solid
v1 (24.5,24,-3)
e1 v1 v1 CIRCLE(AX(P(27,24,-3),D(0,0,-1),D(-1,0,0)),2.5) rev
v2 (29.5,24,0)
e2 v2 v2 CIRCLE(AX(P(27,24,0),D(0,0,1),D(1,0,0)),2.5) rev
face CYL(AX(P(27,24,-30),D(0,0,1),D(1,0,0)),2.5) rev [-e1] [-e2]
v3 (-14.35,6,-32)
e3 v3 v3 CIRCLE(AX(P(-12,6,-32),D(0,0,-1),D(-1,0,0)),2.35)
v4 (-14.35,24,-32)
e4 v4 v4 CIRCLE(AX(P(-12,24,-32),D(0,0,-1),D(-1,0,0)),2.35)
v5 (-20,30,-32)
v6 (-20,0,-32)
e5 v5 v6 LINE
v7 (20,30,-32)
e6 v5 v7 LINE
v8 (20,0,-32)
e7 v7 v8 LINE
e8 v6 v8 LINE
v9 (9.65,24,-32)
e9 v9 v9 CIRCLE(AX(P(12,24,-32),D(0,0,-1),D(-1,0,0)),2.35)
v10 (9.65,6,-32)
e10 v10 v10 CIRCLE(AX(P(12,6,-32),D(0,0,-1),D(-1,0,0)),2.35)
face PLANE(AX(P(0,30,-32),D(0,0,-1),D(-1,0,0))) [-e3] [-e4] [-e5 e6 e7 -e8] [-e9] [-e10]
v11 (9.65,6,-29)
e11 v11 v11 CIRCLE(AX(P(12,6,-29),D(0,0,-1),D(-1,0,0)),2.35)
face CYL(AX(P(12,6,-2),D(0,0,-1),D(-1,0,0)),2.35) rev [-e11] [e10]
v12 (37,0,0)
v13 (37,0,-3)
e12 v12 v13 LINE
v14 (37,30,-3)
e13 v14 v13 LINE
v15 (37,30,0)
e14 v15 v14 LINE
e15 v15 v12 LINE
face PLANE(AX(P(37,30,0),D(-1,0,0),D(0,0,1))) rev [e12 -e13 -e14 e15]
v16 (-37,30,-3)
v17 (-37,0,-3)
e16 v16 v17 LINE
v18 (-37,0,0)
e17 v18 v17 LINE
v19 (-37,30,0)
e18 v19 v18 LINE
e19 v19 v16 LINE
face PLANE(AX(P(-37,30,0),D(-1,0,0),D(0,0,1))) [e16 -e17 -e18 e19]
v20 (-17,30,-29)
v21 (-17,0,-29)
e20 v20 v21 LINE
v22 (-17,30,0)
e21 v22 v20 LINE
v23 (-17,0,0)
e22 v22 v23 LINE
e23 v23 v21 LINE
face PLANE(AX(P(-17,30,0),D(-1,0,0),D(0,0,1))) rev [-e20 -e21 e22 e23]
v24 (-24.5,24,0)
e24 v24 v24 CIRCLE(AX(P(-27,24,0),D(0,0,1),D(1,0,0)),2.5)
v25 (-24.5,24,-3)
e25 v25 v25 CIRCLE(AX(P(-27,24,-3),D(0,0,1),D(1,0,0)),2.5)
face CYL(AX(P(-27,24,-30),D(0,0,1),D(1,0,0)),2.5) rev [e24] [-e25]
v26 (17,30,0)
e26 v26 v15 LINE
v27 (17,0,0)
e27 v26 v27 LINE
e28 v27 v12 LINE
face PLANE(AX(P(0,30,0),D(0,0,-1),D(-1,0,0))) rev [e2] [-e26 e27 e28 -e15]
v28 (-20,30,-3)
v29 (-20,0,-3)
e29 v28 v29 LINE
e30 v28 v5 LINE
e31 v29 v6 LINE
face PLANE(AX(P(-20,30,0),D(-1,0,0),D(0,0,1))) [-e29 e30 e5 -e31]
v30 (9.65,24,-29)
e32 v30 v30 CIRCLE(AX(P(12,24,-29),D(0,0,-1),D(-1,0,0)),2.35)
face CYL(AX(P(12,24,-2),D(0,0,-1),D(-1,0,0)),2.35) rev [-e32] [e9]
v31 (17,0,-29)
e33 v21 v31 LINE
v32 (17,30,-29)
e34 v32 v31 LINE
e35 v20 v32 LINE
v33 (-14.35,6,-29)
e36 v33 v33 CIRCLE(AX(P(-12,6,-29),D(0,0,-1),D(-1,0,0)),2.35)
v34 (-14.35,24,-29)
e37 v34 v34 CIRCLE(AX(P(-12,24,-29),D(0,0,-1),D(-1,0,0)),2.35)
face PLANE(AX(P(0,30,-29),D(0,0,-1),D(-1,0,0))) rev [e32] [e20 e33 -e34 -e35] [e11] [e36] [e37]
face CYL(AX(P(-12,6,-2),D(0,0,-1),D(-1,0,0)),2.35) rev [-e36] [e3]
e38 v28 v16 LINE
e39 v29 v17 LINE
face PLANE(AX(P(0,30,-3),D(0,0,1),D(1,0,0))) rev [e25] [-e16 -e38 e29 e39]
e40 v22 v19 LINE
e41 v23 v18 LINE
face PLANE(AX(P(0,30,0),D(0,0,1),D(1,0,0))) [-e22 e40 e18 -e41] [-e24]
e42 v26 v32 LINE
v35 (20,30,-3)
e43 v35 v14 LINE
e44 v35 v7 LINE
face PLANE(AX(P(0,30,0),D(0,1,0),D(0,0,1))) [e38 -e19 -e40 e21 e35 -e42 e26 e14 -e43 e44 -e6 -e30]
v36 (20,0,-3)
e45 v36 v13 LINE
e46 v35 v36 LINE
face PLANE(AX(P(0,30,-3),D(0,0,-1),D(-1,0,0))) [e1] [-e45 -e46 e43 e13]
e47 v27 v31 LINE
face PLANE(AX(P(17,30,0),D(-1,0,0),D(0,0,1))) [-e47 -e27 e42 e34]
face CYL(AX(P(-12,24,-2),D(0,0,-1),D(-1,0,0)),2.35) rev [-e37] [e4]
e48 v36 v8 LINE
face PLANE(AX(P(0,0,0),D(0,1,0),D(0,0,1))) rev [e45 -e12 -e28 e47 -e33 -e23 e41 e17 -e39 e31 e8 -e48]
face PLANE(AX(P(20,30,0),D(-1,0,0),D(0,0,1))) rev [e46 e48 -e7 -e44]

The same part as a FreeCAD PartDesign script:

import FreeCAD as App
import Part
import Sketcher

V = App.Vector

doc = App.newDocument("Part")
body = doc.addObject("PartDesign::Body", "Body")

# Sketch on XZ plane
sketch1 = doc.addObject("Sketcher::SketchObject", "Sketch")
body.addObject(sketch1)
sketch1.AttachmentSupport = (doc.XZ_Plane, [""])
sketch1.MapMode = "FlatFace"
sketch1.addGeometry([
    Part.LineSegment(V(-17, -29, 0), V(17, -29, 0)),  # 0
    Part.LineSegment(V(17, -29, 0), V(17, 0, 0)),  # 1
    Part.LineSegment(V(17, 0, 0), V(37, 0, 0)),  # 2
    Part.LineSegment(V(37, 0, 0), V(37, -3, 0)),  # 3
    Part.LineSegment(V(37, -3, 0), V(20, -3, 0)),  # 4
    Part.LineSegment(V(20, -3, 0), V(20, -32, 0)),  # 5
    Part.LineSegment(V(20, -32, 0), V(-20, -32, 0)),  # 6
    Part.LineSegment(V(-20, -32, 0), V(-20, -3, 0)),  # 7
    Part.LineSegment(V(-20, -3, 0), V(-37, -3, 0)),  # 8
    Part.LineSegment(V(-37, -3, 0), V(-37, 0, 0)),  # 9
    Part.LineSegment(V(-37, 0, 0), V(-17, 0, 0)),  # 10
    Part.LineSegment(V(-17, 0, 0), V(-17, -29, 0)),  # 11
], False)
sketch1.addConstraint([
    Sketcher.Constraint("Coincident", 0, 2, 1, 1),
    Sketcher.Constraint("Coincident", 1, 2, 2, 1),
    Sketcher.Constraint("Coincident", 2, 2, 3, 1),
    Sketcher.Constraint("Coincident", 3, 2, 4, 1),
    Sketcher.Constraint("Coincident", 4, 2, 5, 1),
    Sketcher.Constraint("Coincident", 5, 2, 6, 1),
    Sketcher.Constraint("Coincident", 6, 2, 7, 1),
    Sketcher.Constraint("Coincident", 7, 2, 8, 1),
    Sketcher.Constraint("Coincident", 8, 2, 9, 1),
    Sketcher.Constraint("Coincident", 9, 2, 10, 1),
    Sketcher.Constraint("Coincident", 10, 2, 11, 1),
    Sketcher.Constraint("Coincident", 11, 2, 0, 1),
    Sketcher.Constraint("Horizontal", 0),
    Sketcher.Constraint("Vertical", 1),
    Sketcher.Constraint("Horizontal", 2),
    Sketcher.Constraint("Vertical", 3),
    Sketcher.Constraint("Horizontal", 4),
    Sketcher.Constraint("Vertical", 5),
    Sketcher.Constraint("Horizontal", 6),
    Sketcher.Constraint("Vertical", 7),
    Sketcher.Constraint("Horizontal", 8),
    Sketcher.Constraint("Vertical", 9),
    Sketcher.Constraint("Horizontal", 10),
    Sketcher.Constraint("Vertical", 11),
    Sketcher.Constraint("Symmetric", 2, 2, 9, 2, -1, 1),
    Sketcher.Constraint("Symmetric", 4, 2, 7, 2, -2),
    Sketcher.Constraint("Symmetric", 1, 2, 10, 2, -2),
    Sketcher.Constraint("Equal", 1, 5),
    Sketcher.Constraint("DistanceX", 0, 1, 0, 2, 34.0),
    Sketcher.Constraint("DistanceX", 2, 1, 2, 2, 20.0),
    Sketcher.Constraint("DistanceX", 4, 2, 4, 1, 17.0),
    Sketcher.Constraint("DistanceY", 1, 1, 1, 2, 29.0),
    Sketcher.Constraint("DistanceY", 3, 2, 3, 1, 3.0),
])
pad1 = doc.addObject("PartDesign::Pad", "Pad")
body.addObject(pad1)
pad1.Profile = sketch1
pad1.Length = 30
pad1.Reversed = True

# Sketch on XY plane
sketch2 = doc.addObject("Sketcher::SketchObject", "Sketch001")
body.addObject(sketch2)
sketch2.AttachmentSupport = (doc.XY_Plane, [""])
sketch2.MapMode = "FlatFace"
sketch2.addGeometry([
    Part.Circle(V(-27, 24, 0), V(0, 0, 1), 2.5),
    Part.Circle(V(27, 24, 0), V(0, 0, 1), 2.5),
], False)
sketch2.addConstraint([
    Sketcher.Constraint("Equal", 0, 1),
    Sketcher.Constraint("Symmetric", 0, 3, 1, 3, -2),
    Sketcher.Constraint("Diameter", 0, 5.0),
    Sketcher.Constraint("DistanceX", 0, 3, -1, 1, 27.0),
    Sketcher.Constraint("DistanceY", -1, 1, 0, 3, 24.0),
])
pocket1 = doc.addObject("PartDesign::Pocket", "Pocket")
body.addObject(pocket1)
pocket1.Profile = sketch2
pocket1.Length = 30

# Sketch on XY plane
sketch3 = doc.addObject("Sketcher::SketchObject", "Sketch002")
body.addObject(sketch3)
sketch3.AttachmentSupport = (doc.XY_Plane, [""])
sketch3.MapMode = "FlatFace"
sketch3.AttachmentOffset = App.Placement(V(0, 0, -32), App.Rotation())
sketch3.addGeometry([
    Part.Circle(V(12, 6, 0), V(0, 0, 1), 2.4),
    Part.Circle(V(-12, 6, 0), V(0, 0, 1), 2.4),
    Part.Circle(V(-12, 24, 0), V(0, 0, 1), 2.4),
    Part.Circle(V(12, 24, 0), V(0, 0, 1), 2.4),
], False)
sketch3.addConstraint([
    Sketcher.Constraint("Equal", 0, 1),
    Sketcher.Constraint("Equal", 1, 2),
    Sketcher.Constraint("Equal", 2, 3),
    Sketcher.Constraint("Symmetric", 0, 3, 1, 3, -2),
    Sketcher.Constraint("Symmetric", 2, 3, 3, 3, -2),
    Sketcher.Constraint("Vertical", 1, 3, 2, 3),
    Sketcher.Constraint("Diameter", 0, 4.7),
    Sketcher.Constraint("DistanceX", -1, 1, 0, 3, 12.0),
    Sketcher.Constraint("DistanceY", -1, 1, 0, 3, 6.0),
    Sketcher.Constraint("DistanceY", -1, 1, 2, 3, 24.0),
])
pocket2 = doc.addObject("PartDesign::Pocket", "Pocket001")
body.addObject(pocket2)
pocket2.Profile = sketch3
pocket2.Length = 30
pocket2.Reversed = True

doc.recompute()
